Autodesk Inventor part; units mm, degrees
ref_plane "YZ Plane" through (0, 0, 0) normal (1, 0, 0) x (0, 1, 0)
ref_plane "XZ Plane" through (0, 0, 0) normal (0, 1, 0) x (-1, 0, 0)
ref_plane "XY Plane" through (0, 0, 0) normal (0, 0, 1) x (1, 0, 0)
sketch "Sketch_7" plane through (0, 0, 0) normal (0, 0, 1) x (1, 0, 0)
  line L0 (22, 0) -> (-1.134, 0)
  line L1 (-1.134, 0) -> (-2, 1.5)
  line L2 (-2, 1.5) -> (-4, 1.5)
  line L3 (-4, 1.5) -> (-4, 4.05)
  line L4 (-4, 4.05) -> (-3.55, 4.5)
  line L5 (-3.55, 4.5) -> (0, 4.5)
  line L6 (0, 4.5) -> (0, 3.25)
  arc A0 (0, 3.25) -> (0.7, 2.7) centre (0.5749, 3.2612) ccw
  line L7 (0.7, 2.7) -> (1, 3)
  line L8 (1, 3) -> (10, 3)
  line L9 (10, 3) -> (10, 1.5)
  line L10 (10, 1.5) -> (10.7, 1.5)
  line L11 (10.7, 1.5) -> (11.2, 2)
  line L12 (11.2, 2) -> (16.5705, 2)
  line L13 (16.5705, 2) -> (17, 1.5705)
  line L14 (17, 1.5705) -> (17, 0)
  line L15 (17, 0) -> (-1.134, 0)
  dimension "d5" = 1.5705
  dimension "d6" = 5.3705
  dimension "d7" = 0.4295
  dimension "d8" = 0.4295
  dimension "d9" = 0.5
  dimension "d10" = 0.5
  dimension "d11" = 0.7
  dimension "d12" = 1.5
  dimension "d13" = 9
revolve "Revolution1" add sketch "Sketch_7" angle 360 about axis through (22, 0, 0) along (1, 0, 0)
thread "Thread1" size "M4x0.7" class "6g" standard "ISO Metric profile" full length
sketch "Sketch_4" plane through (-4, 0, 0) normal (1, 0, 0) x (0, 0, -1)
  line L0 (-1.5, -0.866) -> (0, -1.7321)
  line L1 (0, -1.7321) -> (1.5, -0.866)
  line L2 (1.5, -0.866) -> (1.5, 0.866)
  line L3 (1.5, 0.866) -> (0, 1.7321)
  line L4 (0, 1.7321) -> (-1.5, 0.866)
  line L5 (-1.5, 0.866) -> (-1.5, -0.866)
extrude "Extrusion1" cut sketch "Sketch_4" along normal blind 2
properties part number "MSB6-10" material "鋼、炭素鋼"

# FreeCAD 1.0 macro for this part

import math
import FreeCAD as App
import Part
import Sketcher

V = App.Vector
Q = App.Units.Quantity


def add_polygon(sketch, points):
    """Adds a closed chain of lines whose ends are joined by coincident constraints."""
    first, n = sketch.GeometryCount, len(points)
    for a, b in zip(points, points[1:] + points[:1]):
        sketch.addGeometry(Part.LineSegment(App.Vector(*a, 0), App.Vector(*b, 0)), False)
    for i in range(n):
        sketch.addConstraint(Sketcher.Constraint("Coincident", first + i, 2, first + (i + 1) % n, 1))

doc = App.newDocument("Part")
body = doc.addObject("PartDesign::Body", "Body")

# Sketch on XY plane
sketch1 = body.newObject("Sketcher::SketchObject", "Sketch")
sketch1.AttachmentSupport = (doc.getObject("XY_Plane"), [""])
sketch1.MapMode = "FlatFace"
sketch1.addGeometry(Part.LineSegment(V(-1.134, 0, 0), V(17, 0, 0)), False)
sketch1.addGeometry(Part.LineSegment(V(17, 0, 0), V(17, 1.5705, 0)), False)
sketch1.addGeometry(Part.LineSegment(V(17, 1.5705, 0), V(16.5705, 2, 0)), False)
sketch1.addGeometry(Part.LineSegment(V(16.5705, 2, 0), V(11.2, 2, 0)), False)
sketch1.addGeometry(Part.LineSegment(V(11.2, 2, 0), V(10.7, 1.5, 0)), False)
sketch1.addGeometry(Part.LineSegment(V(10.7, 1.5, 0), V(10, 1.5, 0)), False)
sketch1.addGeometry(Part.LineSegment(V(10, 1.5, 0), V(10, 3, 0)), False)
sketch1.addGeometry(Part.LineSegment(V(10, 3, 0), V(1, 3, 0)), False)
sketch1.addGeometry(Part.LineSegment(V(1, 3, 0), V(0.7, 2.7, 0)), False)
sketch1.addGeometry(Part.ArcOfCircle(Part.Circle(V(0.5749, 3.2612, 0), V(0, 0, 1), 0.575009), math.radians(-178.883925), math.radians(-77.433363)), False)
sketch1.addGeometry(Part.LineSegment(V(0, 3.25, 0), V(0, 4.5, 0)), False)
sketch1.addGeometry(Part.LineSegment(V(0, 4.5, 0), V(-3.55, 4.5, 0)), False)
sketch1.addGeometry(Part.LineSegment(V(-3.55, 4.5, 0), V(-4, 4.05, 0)), False)
sketch1.addGeometry(Part.LineSegment(V(-4, 4.05, 0), V(-4, 1.5, 0)), False)
sketch1.addGeometry(Part.LineSegment(V(-4, 1.5, 0), V(-2, 1.5, 0)), False)
sketch1.addGeometry(Part.LineSegment(V(-2, 1.5, 0), V(-1.134, 0, 0)), False)
sketch1.addConstraint(Sketcher.Constraint("Coincident", 0, 2, 1, 1))
sketch1.addConstraint(Sketcher.Constraint("Coincident", 1, 2, 2, 1))
sketch1.addConstraint(Sketcher.Constraint("Coincident", 2, 2, 3, 1))
sketch1.addConstraint(Sketcher.Constraint("Coincident", 3, 2, 4, 1))
sketch1.addConstraint(Sketcher.Constraint("Coincident", 4, 2, 5, 1))
sketch1.addConstraint(Sketcher.Constraint("Coincident", 5, 2, 6, 1))
sketch1.addConstraint(Sketcher.Constraint("Coincident", 6, 2, 7, 1))
sketch1.addConstraint(Sketcher.Constraint("Coincident", 7, 2, 8, 1))
sketch1.addConstraint(Sketcher.Constraint("Coincident", 8, 2, 9, 2))
sketch1.addConstraint(Sketcher.Constraint("Coincident", 9, 1, 10, 1))
sketch1.addConstraint(Sketcher.Constraint("Coincident", 10, 2, 11, 1))
sketch1.addConstraint(Sketcher.Constraint("Coincident", 11, 2, 12, 1))
sketch1.addConstraint(Sketcher.Constraint("Coincident", 12, 2, 13, 1))
sketch1.addConstraint(Sketcher.Constraint("Coincident", 13, 2, 14, 1))
sketch1.addConstraint(Sketcher.Constraint("Coincident", 14, 2, 15, 1))
sketch1.addConstraint(Sketcher.Constraint("Coincident", 15, 2, 0, 1))
sketch1.addConstraint(Sketcher.Constraint("Horizontal", 0))
sketch1.addConstraint(Sketcher.Constraint("Vertical", 1))
sketch1.addConstraint(Sketcher.Constraint("Horizontal", 3))
sketch1.addConstraint(Sketcher.Constraint("Horizontal", 5))
sketch1.addConstraint(Sketcher.Constraint("Vertical", 6))
sketch1.addConstraint(Sketcher.Constraint("Horizontal", 7))
sketch1.addConstraint(Sketcher.Constraint("Vertical", 10))
sketch1.addConstraint(Sketcher.Constraint("Horizontal", 11))
sketch1.addConstraint(Sketcher.Constraint("Vertical", 13))
sketch1.addConstraint(Sketcher.Constraint("Horizontal", 14))
sketch1.addConstraint(Sketcher.Constraint("PointOnObject", 0, 2, -1))
sketch1.addConstraint(Sketcher.Constraint("PointOnObject", 9, 1, -2))
sketch1.addConstraint(Sketcher.Constraint("Perpendicular", 2, 4))
sketch1.addConstraint(Sketcher.Constraint("Parallel", 4, 8))
sketch1.addConstraint(Sketcher.Constraint("Parallel", 8, 12))
sketch1.addConstraint(Sketcher.Constraint("Horizontal", 5, 2, 13, 2))
sketch1.addConstraint(Sketcher.Constraint("DistanceX", 7, 2, 7, 1, Q("9 mm")))
sketch1.addConstraint(Sketcher.Constraint("DistanceX", 5, 2, 5, 1, Q("0.7 mm")))
sketch1.addConstraint(Sketcher.Constraint("DistanceY", 6, 1, 6, 2, Q("1.5 mm")))
sketch1.addConstraint(Sketcher.Constraint("DistanceY", -1, 1, 4, 2, Q("1.5 mm")))
sketch1.addConstraint(Sketcher.Constraint("DistanceX", -1, 1, 8, 2, Q("0.7 mm")))
sketch1.addConstraint(Sketcher.Constraint("DistanceX", 4, 2, 3, 2, Q("0.5 mm")))
sketch1.addConstraint(Sketcher.Constraint("DistanceY", 4, 2, 3, 2, Q("0.5 mm")))
sketch1.addConstraint(Sketcher.Constraint("DistanceY", 7, 2, 10, 2, Q("1.5 mm")))
sketch1.addConstraint(Sketcher.Constraint("DistanceX", 14, 1, 14, 2, Q("2 mm")))
sketch1.addConstraint(Sketcher.Constraint("Angle", 15, Q("-60.0007 deg")))
sketch1.addConstraint(Sketcher.Constraint("DistanceX", 3, 2, 3, 1, Q("5.3705 mm")))
sketch1.addConstraint(Sketcher.Constraint("DistanceY", 1, 1, 1, 2, Q("1.5705 mm")))
sketch1.addConstraint(Sketcher.Constraint("DistanceX", -1, 1, 0, 2, Q("17 mm")))
sketch1.addConstraint(Sketcher.Constraint("DistanceX", 12, 2, -1, 1, Q("4 mm")))
sketch1.addConstraint(Sketcher.Constraint("Radius", 9, Q("0.575 mm")))
sketch1.addConstraint(Sketcher.Constraint("DistanceX", 11, 2, 11, 1, Q("3.55 mm")))
sketch1.addConstraint(Sketcher.Constraint("DistanceY", 10, 1, 10, 2, Q("1.25 mm")))
revolution = body.newObject("PartDesign::Revolution", "Revolution")
revolution.Profile = sketch1
revolution.ReferenceAxis = (sketch1, ["H_Axis"])
revolution.Angle = 360

# Sketch on YZ plane
sketch2 = body.newObject("Sketcher::SketchObject", "Sketch001")
sketch2.AttachmentSupport = (doc.getObject("YZ_Plane"), [""])
sketch2.MapMode = "FlatFace"
sketch2.AttachmentOffset = App.Placement(V(0, 0, -4), App.Rotation())
add_polygon(sketch2, [(0.866, 1.5), (-0.866, 1.5), (-1.7321, 0), (-0.866, -1.5), (0.866, -1.5), (1.7321, 0)])  # lines 0-5
sketch2.addConstraint(Sketcher.Constraint("Horizontal", 0))
sketch2.addConstraint(Sketcher.Constraint("Horizontal", 3))
sketch2.addConstraint(Sketcher.Constraint("Symmetric", 0, 2, 3, 2, -1, 1))
sketch2.addConstraint(Sketcher.Constraint("Symmetric", 1, 2, 4, 2, -1, 1))
sketch2.addConstraint(Sketcher.Constraint("PointOnObject", 1, 2, -1))
sketch2.addConstraint(Sketcher.Constraint("Parallel", 2, 5))
sketch2.addConstraint(Sketcher.Constraint("Vertical", 0, 2, 2, 2))
sketch2.addConstraint(Sketcher.Constraint("DistanceY", 2, 2, 0, 2, Q("3 mm")))
sketch2.addConstraint(Sketcher.Constraint("DistanceX", 0, 2, 0, 1, Q("1.732 mm")))
sketch2.addConstraint(Sketcher.Constraint("Distance", 1, Q("1.732 mm")))
pocket1 = body.newObject("PartDesign::Pocket", "Pocket")
pocket1.Profile = sketch2
pocket1.Length = 2
pocket1.Reversed = True

doc.recompute()
